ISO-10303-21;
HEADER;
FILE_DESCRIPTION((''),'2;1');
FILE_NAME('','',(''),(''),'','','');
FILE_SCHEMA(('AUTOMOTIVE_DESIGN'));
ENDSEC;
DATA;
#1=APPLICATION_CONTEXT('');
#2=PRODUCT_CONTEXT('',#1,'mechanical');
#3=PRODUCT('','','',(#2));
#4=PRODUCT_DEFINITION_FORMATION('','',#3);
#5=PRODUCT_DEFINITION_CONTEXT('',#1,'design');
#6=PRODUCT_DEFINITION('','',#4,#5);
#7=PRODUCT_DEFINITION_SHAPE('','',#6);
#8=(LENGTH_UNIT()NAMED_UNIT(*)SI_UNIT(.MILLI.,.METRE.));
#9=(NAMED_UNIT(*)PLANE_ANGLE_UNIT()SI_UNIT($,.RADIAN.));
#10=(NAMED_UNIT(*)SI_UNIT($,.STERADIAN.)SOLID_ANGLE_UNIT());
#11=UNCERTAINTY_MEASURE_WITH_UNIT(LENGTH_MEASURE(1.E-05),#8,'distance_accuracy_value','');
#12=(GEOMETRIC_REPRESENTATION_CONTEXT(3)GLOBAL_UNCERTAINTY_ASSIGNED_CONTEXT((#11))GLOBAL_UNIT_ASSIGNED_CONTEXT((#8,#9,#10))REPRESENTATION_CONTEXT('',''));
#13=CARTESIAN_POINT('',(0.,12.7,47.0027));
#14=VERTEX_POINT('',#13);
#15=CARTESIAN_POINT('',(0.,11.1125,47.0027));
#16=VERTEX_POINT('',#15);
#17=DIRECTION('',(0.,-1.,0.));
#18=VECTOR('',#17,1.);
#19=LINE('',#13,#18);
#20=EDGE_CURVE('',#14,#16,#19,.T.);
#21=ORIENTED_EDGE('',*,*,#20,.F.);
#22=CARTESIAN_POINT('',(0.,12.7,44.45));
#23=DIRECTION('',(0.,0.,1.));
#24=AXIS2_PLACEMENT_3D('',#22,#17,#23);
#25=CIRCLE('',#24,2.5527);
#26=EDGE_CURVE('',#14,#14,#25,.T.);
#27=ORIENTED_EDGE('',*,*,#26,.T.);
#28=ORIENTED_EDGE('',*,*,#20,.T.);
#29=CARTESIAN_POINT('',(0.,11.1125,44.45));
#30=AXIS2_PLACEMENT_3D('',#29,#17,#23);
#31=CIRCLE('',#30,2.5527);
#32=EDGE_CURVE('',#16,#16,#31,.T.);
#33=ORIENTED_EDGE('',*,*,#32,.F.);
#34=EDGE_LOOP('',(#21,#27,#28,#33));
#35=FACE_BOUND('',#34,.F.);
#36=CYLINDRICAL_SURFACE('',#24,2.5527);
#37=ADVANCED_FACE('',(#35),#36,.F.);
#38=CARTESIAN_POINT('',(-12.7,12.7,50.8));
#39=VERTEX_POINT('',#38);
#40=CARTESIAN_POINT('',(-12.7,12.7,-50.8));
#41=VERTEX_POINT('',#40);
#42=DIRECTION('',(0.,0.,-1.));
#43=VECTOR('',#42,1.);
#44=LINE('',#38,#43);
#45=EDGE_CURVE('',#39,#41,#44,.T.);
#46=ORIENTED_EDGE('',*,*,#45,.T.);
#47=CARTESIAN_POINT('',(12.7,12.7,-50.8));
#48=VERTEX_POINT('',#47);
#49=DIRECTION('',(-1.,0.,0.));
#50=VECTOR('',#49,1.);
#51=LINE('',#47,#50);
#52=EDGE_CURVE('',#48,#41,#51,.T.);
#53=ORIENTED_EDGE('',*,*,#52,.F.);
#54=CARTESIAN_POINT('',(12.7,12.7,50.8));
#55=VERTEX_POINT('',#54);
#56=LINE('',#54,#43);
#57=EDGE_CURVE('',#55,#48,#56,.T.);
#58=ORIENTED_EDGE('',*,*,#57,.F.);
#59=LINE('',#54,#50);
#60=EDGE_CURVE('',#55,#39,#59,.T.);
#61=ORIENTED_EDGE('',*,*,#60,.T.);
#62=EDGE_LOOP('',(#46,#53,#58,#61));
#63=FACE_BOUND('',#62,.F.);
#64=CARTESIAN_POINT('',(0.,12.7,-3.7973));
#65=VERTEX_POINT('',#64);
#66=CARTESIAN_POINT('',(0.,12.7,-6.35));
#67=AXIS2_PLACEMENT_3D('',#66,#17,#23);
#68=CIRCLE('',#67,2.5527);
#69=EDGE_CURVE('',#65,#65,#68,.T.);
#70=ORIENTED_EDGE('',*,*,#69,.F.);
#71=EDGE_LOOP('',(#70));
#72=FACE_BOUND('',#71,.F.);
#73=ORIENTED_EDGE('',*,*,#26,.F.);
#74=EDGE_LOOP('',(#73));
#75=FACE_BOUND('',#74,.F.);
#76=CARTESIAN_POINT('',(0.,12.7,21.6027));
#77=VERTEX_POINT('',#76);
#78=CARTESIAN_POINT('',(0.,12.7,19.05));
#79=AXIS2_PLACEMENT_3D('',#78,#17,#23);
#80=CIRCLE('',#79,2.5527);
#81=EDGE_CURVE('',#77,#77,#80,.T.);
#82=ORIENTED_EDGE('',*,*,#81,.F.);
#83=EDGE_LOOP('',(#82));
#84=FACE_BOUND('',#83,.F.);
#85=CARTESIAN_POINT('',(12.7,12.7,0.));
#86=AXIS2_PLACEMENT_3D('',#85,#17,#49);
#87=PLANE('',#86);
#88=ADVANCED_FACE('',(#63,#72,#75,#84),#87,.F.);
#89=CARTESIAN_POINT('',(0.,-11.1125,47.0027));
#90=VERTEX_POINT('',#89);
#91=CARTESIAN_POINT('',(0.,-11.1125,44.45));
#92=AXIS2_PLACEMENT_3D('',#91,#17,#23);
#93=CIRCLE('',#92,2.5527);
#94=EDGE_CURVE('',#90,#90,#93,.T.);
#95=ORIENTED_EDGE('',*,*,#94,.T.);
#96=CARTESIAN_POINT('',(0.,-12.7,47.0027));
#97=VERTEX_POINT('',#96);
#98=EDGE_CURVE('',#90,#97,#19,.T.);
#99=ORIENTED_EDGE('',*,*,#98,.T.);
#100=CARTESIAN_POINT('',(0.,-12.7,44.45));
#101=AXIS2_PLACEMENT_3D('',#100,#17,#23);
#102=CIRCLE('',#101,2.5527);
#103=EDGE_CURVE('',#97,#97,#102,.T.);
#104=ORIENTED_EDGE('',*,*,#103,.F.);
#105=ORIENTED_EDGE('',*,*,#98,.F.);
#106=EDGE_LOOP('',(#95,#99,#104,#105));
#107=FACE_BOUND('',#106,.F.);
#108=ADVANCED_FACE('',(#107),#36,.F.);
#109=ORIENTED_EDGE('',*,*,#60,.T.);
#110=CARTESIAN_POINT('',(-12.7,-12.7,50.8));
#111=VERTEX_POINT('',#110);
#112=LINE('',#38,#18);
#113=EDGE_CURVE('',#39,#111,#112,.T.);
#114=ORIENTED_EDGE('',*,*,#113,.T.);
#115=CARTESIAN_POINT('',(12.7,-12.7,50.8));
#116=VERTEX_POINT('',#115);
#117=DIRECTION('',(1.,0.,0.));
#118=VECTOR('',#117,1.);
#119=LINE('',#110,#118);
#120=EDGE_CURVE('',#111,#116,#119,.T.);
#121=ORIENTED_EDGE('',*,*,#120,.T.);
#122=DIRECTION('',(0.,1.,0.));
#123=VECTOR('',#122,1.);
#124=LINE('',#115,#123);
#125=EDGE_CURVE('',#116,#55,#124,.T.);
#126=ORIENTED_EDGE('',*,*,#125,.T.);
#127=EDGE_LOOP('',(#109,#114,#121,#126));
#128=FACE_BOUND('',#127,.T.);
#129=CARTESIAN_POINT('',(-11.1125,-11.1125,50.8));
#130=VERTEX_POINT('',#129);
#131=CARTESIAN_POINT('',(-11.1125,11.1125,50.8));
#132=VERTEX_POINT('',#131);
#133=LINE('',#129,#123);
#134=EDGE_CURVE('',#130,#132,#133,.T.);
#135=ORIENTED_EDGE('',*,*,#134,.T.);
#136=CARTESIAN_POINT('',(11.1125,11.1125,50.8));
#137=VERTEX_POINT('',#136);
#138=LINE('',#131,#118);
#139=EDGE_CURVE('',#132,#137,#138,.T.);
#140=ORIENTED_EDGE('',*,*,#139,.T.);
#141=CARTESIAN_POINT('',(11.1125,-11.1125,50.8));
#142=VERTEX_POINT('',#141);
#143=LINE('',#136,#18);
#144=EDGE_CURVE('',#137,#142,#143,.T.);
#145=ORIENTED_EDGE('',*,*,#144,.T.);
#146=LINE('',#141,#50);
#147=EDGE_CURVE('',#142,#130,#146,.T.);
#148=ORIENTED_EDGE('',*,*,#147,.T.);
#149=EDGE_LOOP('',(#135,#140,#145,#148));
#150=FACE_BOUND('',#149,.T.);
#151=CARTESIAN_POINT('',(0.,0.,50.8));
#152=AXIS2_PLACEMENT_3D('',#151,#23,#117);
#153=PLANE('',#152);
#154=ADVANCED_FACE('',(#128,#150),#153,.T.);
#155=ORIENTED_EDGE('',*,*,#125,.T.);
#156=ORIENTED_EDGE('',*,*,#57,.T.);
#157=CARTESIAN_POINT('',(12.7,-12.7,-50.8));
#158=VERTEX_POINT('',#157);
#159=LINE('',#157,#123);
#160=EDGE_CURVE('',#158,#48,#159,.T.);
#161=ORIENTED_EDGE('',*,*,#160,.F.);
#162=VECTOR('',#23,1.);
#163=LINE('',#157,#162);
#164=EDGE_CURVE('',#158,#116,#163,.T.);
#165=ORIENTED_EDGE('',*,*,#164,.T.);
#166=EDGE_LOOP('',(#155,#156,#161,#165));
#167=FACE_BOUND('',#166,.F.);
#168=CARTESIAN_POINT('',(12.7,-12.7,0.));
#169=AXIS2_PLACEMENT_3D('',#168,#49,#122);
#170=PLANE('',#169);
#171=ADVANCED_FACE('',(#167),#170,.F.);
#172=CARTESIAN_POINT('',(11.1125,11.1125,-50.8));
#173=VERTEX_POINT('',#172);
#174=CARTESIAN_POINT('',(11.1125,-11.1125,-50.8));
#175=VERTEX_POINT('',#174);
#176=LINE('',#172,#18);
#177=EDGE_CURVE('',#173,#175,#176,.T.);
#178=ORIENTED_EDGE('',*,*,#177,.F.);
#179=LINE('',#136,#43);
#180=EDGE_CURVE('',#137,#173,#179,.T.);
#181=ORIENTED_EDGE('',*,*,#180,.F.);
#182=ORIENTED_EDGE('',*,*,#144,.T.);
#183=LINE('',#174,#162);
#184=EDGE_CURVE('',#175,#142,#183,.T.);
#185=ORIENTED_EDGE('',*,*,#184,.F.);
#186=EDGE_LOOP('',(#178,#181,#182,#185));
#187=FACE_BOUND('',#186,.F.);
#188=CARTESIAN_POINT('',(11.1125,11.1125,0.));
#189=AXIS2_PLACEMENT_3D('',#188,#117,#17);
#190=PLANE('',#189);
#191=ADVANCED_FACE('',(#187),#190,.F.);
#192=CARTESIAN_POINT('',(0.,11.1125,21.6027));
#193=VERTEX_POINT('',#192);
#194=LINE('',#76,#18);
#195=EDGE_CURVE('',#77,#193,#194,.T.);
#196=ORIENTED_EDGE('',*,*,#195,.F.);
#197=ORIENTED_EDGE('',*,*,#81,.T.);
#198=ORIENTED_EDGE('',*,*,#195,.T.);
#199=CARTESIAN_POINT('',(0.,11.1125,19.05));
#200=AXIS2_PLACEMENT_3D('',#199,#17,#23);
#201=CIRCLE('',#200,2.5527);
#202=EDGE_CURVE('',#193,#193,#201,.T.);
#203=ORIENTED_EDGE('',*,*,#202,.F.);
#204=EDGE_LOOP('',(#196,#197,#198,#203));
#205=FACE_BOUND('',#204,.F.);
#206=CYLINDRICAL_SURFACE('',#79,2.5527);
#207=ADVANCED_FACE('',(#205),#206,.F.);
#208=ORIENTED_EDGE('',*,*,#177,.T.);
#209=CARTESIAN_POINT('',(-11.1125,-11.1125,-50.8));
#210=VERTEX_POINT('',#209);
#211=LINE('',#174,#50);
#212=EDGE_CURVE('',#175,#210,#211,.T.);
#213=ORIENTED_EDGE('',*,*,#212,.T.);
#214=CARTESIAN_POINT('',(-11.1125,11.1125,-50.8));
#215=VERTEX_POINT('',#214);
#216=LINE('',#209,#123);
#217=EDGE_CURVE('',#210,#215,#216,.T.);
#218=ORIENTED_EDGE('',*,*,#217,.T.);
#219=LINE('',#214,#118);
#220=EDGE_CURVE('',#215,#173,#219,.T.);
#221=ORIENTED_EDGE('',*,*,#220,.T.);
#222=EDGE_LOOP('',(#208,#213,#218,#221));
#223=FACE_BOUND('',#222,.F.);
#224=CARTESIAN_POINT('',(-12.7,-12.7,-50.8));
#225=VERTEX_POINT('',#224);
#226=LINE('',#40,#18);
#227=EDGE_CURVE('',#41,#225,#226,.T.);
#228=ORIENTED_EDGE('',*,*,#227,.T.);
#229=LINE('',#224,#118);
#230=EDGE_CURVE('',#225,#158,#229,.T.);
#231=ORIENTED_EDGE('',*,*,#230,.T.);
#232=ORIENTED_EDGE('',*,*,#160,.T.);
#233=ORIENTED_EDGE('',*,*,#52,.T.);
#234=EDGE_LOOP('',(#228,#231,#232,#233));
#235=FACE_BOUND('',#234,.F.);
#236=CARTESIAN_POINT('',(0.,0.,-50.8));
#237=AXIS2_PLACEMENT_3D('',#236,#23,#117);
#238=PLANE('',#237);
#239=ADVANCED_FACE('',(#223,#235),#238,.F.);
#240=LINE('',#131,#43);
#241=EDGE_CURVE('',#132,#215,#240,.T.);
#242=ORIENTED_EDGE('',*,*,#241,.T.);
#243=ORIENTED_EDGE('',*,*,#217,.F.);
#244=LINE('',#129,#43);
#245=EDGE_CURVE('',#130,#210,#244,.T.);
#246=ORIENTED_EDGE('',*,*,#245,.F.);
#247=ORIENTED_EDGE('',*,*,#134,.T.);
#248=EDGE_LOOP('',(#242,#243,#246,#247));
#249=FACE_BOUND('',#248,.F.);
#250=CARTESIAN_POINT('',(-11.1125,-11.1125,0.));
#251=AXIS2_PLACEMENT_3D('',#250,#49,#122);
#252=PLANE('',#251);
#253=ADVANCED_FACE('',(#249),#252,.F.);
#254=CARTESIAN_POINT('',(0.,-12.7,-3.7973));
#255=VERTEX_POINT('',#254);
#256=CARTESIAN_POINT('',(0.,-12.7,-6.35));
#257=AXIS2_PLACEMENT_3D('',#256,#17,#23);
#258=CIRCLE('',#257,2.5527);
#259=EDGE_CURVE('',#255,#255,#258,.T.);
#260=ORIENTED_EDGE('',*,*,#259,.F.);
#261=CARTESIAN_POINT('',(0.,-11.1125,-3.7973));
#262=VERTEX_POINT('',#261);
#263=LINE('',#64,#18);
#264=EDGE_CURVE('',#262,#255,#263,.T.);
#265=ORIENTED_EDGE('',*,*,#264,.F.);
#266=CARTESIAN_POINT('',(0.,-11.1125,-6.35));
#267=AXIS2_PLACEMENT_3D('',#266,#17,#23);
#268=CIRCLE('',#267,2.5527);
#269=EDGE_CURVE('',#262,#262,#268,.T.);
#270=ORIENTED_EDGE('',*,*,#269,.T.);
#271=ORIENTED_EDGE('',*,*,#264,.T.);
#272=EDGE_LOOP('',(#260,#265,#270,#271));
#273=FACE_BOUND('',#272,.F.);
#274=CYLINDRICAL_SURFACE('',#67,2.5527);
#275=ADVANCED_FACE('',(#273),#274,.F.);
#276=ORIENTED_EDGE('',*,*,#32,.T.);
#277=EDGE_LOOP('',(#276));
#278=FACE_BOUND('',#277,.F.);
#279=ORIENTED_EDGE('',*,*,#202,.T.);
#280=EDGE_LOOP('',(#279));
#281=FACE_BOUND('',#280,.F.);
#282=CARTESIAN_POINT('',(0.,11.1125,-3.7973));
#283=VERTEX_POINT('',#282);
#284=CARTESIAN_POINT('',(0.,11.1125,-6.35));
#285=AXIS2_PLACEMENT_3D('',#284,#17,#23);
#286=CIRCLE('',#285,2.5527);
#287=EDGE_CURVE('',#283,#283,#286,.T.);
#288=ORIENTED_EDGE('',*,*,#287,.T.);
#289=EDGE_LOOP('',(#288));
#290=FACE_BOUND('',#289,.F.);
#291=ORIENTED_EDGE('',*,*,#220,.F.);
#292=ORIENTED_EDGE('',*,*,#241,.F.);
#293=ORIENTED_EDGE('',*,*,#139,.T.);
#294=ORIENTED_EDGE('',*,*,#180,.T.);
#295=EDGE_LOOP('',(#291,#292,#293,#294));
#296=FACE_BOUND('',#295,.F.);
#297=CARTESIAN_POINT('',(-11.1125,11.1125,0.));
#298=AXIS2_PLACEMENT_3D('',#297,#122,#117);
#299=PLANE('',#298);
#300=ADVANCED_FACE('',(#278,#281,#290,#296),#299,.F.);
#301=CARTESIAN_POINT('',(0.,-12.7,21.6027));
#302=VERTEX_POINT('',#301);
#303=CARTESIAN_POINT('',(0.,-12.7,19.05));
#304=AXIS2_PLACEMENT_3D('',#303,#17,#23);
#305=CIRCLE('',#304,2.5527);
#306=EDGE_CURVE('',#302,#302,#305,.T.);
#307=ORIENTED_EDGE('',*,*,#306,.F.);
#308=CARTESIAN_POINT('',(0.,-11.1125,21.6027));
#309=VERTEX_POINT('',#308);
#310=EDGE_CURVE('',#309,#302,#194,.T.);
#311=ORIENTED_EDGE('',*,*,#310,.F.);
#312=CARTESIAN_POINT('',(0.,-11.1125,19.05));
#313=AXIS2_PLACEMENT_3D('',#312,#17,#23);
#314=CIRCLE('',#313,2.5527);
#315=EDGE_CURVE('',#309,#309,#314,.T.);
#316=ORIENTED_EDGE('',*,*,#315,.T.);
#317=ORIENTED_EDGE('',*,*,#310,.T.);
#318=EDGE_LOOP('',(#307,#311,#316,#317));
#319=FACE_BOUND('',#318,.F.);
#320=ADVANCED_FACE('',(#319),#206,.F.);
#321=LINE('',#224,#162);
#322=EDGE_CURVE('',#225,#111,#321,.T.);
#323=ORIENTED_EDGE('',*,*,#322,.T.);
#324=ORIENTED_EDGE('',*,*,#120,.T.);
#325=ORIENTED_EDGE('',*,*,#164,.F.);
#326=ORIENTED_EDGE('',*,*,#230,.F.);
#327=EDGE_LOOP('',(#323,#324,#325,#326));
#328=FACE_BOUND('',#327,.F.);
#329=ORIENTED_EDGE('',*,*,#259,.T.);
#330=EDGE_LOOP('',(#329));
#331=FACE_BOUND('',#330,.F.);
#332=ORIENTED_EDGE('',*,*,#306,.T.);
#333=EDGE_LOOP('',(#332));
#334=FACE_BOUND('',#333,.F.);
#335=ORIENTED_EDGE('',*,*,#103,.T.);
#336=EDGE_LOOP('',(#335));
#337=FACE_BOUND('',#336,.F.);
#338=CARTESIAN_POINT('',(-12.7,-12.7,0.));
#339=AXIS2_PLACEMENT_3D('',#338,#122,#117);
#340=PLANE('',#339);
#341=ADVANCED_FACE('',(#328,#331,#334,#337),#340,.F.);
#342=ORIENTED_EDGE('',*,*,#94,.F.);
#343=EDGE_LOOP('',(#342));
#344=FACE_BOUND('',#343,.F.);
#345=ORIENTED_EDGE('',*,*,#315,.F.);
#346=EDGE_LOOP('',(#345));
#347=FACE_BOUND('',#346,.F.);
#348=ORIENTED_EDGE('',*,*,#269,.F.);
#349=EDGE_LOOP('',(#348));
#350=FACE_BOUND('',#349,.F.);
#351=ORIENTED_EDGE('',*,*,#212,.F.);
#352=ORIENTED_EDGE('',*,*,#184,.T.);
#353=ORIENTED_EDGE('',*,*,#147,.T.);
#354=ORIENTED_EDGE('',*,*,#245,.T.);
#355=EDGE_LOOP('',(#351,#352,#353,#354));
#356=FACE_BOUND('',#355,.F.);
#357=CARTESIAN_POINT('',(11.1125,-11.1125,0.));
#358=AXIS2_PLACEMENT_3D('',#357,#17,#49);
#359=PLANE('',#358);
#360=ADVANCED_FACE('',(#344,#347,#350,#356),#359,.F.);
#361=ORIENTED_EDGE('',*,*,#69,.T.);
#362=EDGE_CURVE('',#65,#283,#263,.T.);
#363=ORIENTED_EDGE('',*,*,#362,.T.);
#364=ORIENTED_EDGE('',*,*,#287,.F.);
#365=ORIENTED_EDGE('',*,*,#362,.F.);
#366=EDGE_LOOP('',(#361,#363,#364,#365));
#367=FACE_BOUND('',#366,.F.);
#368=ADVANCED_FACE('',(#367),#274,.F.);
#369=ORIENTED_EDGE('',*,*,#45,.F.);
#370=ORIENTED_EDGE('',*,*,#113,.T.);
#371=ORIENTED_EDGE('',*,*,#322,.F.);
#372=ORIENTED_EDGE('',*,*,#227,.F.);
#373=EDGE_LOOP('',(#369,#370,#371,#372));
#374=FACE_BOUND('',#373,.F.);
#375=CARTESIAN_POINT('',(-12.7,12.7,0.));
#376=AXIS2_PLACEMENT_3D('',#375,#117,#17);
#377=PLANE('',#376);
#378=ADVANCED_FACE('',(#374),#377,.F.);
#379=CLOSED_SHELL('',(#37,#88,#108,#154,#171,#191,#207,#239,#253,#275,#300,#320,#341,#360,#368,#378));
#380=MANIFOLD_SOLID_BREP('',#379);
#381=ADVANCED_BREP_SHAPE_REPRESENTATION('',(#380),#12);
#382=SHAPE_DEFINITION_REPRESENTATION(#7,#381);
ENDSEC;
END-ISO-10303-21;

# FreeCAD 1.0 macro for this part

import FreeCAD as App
import Part
import Sketcher
Q = App.Units.Quantity


def add_polygon(sketch, points):
    """Adds a closed chain of lines whose ends are joined by coincident constraints."""
    first, n = sketch.GeometryCount, len(points)
    for a, b in zip(points, points[1:] + points[:1]):
        sketch.addGeometry(Part.LineSegment(App.Vector(*a, 0), App.Vector(*b, 0)), False)
    for i in range(n):
        sketch.addConstraint(Sketcher.Constraint("Coincident", first + i, 2, first + (i + 1) % n, 1))

doc = App.newDocument("Part")
body = doc.addObject("PartDesign::Body", "Body")

# Sketch on XY plane
sketch1 = body.newObject("Sketcher::SketchObject", "Sketch")
sketch1.AttachmentSupport = (doc.getObject("XY_Plane"), [""])
sketch1.MapMode = "FlatFace"
add_polygon(sketch1, [(-12.7, 12.7), (-12.7, -12.7), (12.7, -12.7), (12.7, 12.7)])  # lines 0-3
add_polygon(sketch1, [(11.1125, 11.1125), (11.1125, -11.1125), (-11.1125, -11.1125), (-11.1125, 11.1125)])  # lines 4-7
sketch1.addConstraint([
    Sketcher.Constraint("Vertical", 0),
    Sketcher.Constraint("Horizontal", 1),
    Sketcher.Constraint("Vertical", 2),
    Sketcher.Constraint("Horizontal", 3),
    Sketcher.Constraint("Vertical", 4),
    Sketcher.Constraint("Horizontal", 5),
    Sketcher.Constraint("Vertical", 6),
    Sketcher.Constraint("Horizontal", 7),
    Sketcher.Constraint("Symmetric", 0, 2, 2, 2, -1, 1),
    Sketcher.Constraint("Symmetric", 4, 2, 6, 2, -1, 1),
    Sketcher.Constraint("Equal", 3, 0),
    Sketcher.Constraint("Equal", 7, 4),
    Sketcher.Constraint("DistanceX", 1, 1, 1, 2, Q("1 in")),
    Sketcher.Constraint("DistanceX", 5, 2, 5, 1, Q("0.875 in")),
])
pad1 = body.newObject("PartDesign::Pad", "Pad")
pad1.Profile = sketch1
pad1.Length = Q("4 in")
pad1.Midplane = True

# Sketch on XZ plane
sketch2 = body.newObject("Sketcher::SketchObject", "Sketch001")
sketch2.AttachmentSupport = (doc.getObject("XZ_Plane"), [""])
sketch2.MapMode = "FlatFace"
sketch2.AttachmentOffset = App.Placement(App.Vector(0, 0, -0.5 * 25.4), App.Rotation())
sketch2.addGeometry([
    Part.Circle(App.Vector(0, 44.45, 0), App.Vector(0, 0, 1), 2.5527),
    Part.Circle(App.Vector(0, 19.05, 0), App.Vector(0, 0, 1), 2.5527),
    Part.Circle(App.Vector(0, -6.35, 0), App.Vector(0, 0, 1), 2.5527),
], False)
sketch2.addConstraint([
    Sketcher.Constraint("Equal", 0, 1),
    Sketcher.Constraint("Equal", 1, 2),
    Sketcher.Constraint("PointOnObject", 0, 3, -2),
    Sketcher.Constraint("PointOnObject", 1, 3, -2),
    Sketcher.Constraint("PointOnObject", 2, 3, -2),
    Sketcher.Constraint("Diameter", 0, Q("0.201 in")),
    Sketcher.Constraint("DistanceY", 1, 3, 0, 3, Q("1 in")),
    Sketcher.Constraint("DistanceY", 2, 3, 1, 3, Q("1 in")),
    Sketcher.Constraint("DistanceY", -1, 1, 0, 3, Q("1.75 in")),
])
doc.recompute()
hole = body.newObject("PartDesign::Hole", "Hole")
hole.Profile = sketch2
hole.ThreadType = "None"
hole.Diameter = Q("0.201 in")
hole.DepthType = "ThroughAll"
hole.Reversed = True

doc.recompute()
